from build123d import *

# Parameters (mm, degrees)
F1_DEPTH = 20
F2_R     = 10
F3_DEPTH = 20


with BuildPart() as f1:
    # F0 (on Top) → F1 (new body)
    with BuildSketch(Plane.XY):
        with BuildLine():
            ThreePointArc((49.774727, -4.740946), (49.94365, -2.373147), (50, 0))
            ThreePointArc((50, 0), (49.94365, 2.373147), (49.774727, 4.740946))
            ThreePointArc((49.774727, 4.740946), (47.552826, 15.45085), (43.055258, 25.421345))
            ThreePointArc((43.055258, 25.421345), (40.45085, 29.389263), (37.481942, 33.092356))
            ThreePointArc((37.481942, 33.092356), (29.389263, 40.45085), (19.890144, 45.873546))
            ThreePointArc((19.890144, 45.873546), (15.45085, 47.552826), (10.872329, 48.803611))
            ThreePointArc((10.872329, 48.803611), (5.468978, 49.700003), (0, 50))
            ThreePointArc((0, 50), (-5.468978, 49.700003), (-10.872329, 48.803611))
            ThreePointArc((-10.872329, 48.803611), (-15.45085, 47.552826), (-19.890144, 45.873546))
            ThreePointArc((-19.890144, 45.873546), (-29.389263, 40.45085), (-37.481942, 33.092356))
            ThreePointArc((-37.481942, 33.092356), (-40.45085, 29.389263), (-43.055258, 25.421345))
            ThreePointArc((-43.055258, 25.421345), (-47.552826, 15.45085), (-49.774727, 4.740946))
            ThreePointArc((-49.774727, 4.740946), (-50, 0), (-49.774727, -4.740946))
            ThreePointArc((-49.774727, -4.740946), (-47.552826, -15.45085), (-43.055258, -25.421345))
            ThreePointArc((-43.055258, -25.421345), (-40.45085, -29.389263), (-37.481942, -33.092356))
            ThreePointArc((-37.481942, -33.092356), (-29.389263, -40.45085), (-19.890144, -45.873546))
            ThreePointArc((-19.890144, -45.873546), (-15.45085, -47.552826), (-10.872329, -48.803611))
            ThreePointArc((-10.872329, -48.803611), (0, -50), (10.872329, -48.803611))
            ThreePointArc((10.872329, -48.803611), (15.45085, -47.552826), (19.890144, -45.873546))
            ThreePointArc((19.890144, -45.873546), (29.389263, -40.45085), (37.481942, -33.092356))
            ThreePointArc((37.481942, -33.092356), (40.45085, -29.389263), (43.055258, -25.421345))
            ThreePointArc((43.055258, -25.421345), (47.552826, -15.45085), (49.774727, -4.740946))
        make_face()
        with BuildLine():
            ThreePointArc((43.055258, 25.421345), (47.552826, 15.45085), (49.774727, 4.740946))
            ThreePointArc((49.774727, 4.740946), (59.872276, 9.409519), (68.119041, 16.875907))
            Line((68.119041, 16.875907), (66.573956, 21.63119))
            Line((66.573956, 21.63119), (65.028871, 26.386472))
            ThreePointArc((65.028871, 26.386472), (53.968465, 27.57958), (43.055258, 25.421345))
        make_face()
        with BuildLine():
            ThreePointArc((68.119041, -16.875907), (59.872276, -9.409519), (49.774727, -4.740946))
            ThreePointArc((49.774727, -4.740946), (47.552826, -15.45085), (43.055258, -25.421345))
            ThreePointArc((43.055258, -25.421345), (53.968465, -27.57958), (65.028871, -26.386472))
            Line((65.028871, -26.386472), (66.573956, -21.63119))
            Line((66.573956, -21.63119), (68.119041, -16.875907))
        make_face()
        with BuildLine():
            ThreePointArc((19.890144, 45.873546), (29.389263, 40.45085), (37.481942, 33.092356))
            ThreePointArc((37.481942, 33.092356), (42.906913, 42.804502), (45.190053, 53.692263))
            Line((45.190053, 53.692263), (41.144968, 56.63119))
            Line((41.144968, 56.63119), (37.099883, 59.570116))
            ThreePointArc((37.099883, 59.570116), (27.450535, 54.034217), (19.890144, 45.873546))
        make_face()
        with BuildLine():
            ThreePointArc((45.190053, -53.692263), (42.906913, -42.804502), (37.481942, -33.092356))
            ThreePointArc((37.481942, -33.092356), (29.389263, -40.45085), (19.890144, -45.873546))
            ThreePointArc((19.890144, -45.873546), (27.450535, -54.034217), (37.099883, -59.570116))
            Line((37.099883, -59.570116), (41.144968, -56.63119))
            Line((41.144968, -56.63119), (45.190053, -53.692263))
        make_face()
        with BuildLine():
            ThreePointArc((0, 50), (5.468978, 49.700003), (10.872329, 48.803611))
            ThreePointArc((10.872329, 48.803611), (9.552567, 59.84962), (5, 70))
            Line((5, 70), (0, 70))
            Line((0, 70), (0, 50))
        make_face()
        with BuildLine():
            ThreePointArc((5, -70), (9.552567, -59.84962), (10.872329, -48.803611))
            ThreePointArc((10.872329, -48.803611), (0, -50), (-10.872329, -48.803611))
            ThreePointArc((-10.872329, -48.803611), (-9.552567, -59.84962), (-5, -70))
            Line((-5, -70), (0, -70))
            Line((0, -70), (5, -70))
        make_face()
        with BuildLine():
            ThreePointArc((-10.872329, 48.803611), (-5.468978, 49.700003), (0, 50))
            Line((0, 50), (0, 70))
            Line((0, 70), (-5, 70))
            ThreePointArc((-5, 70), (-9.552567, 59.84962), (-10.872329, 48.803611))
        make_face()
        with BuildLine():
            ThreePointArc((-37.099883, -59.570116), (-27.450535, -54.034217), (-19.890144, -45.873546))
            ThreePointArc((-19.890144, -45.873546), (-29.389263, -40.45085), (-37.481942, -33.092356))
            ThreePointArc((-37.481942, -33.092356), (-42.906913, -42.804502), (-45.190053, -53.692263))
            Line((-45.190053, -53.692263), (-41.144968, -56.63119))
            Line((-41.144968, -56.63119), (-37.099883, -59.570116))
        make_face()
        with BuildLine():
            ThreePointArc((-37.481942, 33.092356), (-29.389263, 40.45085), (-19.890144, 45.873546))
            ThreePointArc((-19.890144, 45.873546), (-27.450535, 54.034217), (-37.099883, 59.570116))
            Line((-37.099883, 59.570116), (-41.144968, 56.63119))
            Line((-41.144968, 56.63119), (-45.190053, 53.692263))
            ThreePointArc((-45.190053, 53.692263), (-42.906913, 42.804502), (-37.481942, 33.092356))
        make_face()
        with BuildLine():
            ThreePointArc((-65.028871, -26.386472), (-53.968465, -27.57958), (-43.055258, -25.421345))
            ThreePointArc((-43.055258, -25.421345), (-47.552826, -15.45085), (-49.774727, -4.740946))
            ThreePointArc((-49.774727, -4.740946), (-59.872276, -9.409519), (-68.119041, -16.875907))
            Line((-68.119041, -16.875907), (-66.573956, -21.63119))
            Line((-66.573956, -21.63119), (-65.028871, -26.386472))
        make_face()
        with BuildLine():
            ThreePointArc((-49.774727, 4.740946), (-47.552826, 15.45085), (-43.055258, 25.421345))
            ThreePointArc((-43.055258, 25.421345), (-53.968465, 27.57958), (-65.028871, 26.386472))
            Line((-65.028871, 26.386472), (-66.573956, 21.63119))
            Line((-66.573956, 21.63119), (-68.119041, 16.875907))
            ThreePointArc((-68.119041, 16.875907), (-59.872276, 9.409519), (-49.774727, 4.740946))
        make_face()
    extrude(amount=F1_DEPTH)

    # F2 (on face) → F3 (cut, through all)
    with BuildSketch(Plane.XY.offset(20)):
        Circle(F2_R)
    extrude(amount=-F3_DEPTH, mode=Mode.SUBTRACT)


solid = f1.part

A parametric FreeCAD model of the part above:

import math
import FreeCAD as App
import Part
import Sketcher

V = App.Vector
Q = App.Units.Quantity

doc = App.newDocument("Part")
body = doc.addObject("PartDesign::Body", "Body")

sketch1 = body.newObject("Sketcher::SketchObject", "Sketch")
sketch1.AttachmentSupport = (doc.getObject("XY_Plane"), [""])
sketch1.MapMode = "FlatFace"
sketch1.addGeometry([
    Part.ArcOfCircle(Part.Circle(V(-0.000057, 0.000001, 0), V(0, 0, 1), 50.000057), math.radians(-5.440892), math.radians(-0.000001)),
    Part.ArcOfCircle(Part.Circle(V(-0.000057, -0.000001, 0), V(0, 0, 1), 50.000057), math.radians(0.000001), math.radians(5.440892)),
    Part.ArcOfCircle(Part.Circle(V(39.518383, 40.178321, 0), V(0, 0, 1), 36.891736), math.radians(-73.858411), math.radians(-39.17146)),
    Part.LineSegment(V(68.119041, 16.875907, 0), V(66.573956, 21.63119, 0)),
    Part.LineSegment(V(66.573956, 21.63119, 0), V(65.028871, 26.386472, 0)),
    Part.ArcOfCircle(Part.Circle(V(55.587267, -9.276627, 0), V(0, 0, 1), 36.89174), math.radians(75.17146), math.radians(109.858408)),
    Part.ArcOfCircle(Part.Circle(V(0.00006, 0.000042, 0), V(0, 0, 1), 49.999927), math.radians(30.559096), math.radians(41.440906)),
    Part.ArcOfCircle(Part.Circle(V(8.354822, 55.733266, 0), V(0, 0, 1), 36.891732), math.radians(-37.858414), math.radians(-3.171459)),
    Part.LineSegment(V(45.190053, 53.692263, 0), V(41.144968, 56.63119, 0)),
    Part.LineSegment(V(41.144968, 56.63119, 0), V(37.099883, 59.570116, 0)),
    Part.ArcOfCircle(Part.Circle(V(50.423707, 25.16843, 0), V(0, 0, 1), 36.891738), math.radians(111.171459), math.radians(145.858409)),
    Part.ArcOfCircle(Part.Circle(V(0.000009, 0.000017, 0), V(0, 0, 1), 49.999981), math.radians(66.559105), math.radians(77.440904)),
    Part.ArcOfCircle(Part.Circle(V(-25.999989, 50.000003, 0), V(0, 0, 1), 36.891723), math.radians(-1.858418), math.radians(32.828547)),
    Part.LineSegment(V(5, 70, 0), V(-5, 70, 0)),
    Part.ArcOfCircle(Part.Circle(V(25.999989, 50.000003, 0), V(0, 0, 1), 36.891723), math.radians(147.171453), math.radians(181.858418)),
    Part.ArcOfCircle(Part.Circle(V(-0.000009, 0.000017, 0), V(0, 0, 1), 49.999981), math.radians(102.559096), math.radians(113.440895)),
    Part.ArcOfCircle(Part.Circle(V(-50.423707, 25.16843, 0), V(0, 0, 1), 36.891738), math.radians(34.141591), math.radians(68.828541)),
    Part.LineSegment(V(-37.099883, 59.570116, 0), V(-41.144968, 56.63119, 0)),
    Part.LineSegment(V(-41.144968, 56.63119, 0), V(-45.190053, 53.692263, 0)),
    Part.ArcOfCircle(Part.Circle(V(-8.354822, 55.733266, 0), V(0, 0, 1), 36.891732), math.radians(-176.828541), math.radians(-142.141586)),
    Part.ArcOfCircle(Part.Circle(V(-0.00006, 0.000042, 0), V(0, 0, 1), 49.999927), math.radians(138.559094), math.radians(149.440904)),
    Part.ArcOfCircle(Part.Circle(V(-55.587267, -9.276627, 0), V(0, 0, 1), 36.89174), math.radians(70.141592), math.radians(104.82854)),
    Part.LineSegment(V(-65.028871, 26.386472, 0), V(-66.573956, 21.63119, 0)),
    Part.LineSegment(V(-66.573956, 21.63119, 0), V(-68.119041, 16.875907, 0)),
    Part.ArcOfCircle(Part.Circle(V(-39.518383, 40.178321, 0), V(0, 0, 1), 36.891736), math.radians(-140.82854), math.radians(-106.141589)),
    Part.ArcOfCircle(Part.Circle(V(0.000038, 0, 0), V(0, 0, 1), 50.000038), math.radians(174.559106), math.radians(185.440894)),
    Part.ArcOfCircle(Part.Circle(V(-39.518383, -40.178321, 0), V(0, 0, 1), 36.891736), math.radians(106.141589), math.radians(140.82854)),
    Part.LineSegment(V(-68.119041, -16.875907, 0), V(-66.573956, -21.63119, 0)),
    Part.LineSegment(V(-66.573956, -21.63119, 0), V(-65.028871, -26.386472, 0)),
    Part.ArcOfCircle(Part.Circle(V(-55.587267, 9.276627, 0), V(0, 0, 1), 36.89174), math.radians(-104.82854), math.radians(-70.141592)),
    Part.ArcOfCircle(Part.Circle(V(-0.00006, -0.000042, 0), V(0, 0, 1), 49.999927), math.radians(-149.440904), math.radians(-138.559094)),
    Part.ArcOfCircle(Part.Circle(V(-8.354822, -55.733266, 0), V(0, 0, 1), 36.891732), math.radians(142.141586), math.radians(176.828541)),
    Part.LineSegment(V(-45.190053, -53.692263, 0), V(-41.144968, -56.63119, 0)),
    Part.LineSegment(V(-41.144968, -56.63119, 0), V(-37.099883, -59.570116, 0)),
    Part.ArcOfCircle(Part.Circle(V(-50.423707, -25.16843, 0), V(0, 0, 1), 36.891738), math.radians(-68.828541), math.radians(-34.141591)),
    Part.ArcOfCircle(Part.Circle(V(-0.000009, -0.000017, 0), V(0, 0, 1), 49.999981), math.radians(-113.440895), math.radians(-102.559096)),
    Part.ArcOfCircle(Part.Circle(V(25.999989, -50.000003, 0), V(0, 0, 1), 36.891723), math.radians(178.141582), math.radians(212.828547)),
    Part.LineSegment(V(-5, -70, 0), V(5, -70, 0)),
    Part.ArcOfCircle(Part.Circle(V(-25.999989, -50.000003, 0), V(0, 0, 1), 36.891723), math.radians(-32.828547), math.radians(1.858418)),
    Part.ArcOfCircle(Part.Circle(V(0.000009, -0.000017, 0), V(0, 0, 1), 49.999981), math.radians(-77.440904), math.radians(-66.559105)),
    Part.ArcOfCircle(Part.Circle(V(50.423707, -25.16843, 0), V(0, 0, 1), 36.891738), math.radians(-145.858409), math.radians(-111.171459)),
    Part.LineSegment(V(37.099883, -59.570116, 0), V(41.144968, -56.63119, 0)),
    Part.LineSegment(V(41.144968, -56.63119, 0), V(45.190053, -53.692263, 0)),
    Part.ArcOfCircle(Part.Circle(V(8.354822, -55.733266, 0), V(0, 0, 1), 36.891732), math.radians(3.171459), math.radians(37.858414)),
    Part.ArcOfCircle(Part.Circle(V(0.00006, -0.000042, 0), V(0, 0, 1), 49.999927), math.radians(-41.440906), math.radians(-30.559096)),
    Part.ArcOfCircle(Part.Circle(V(55.587267, 9.276627, 0), V(0, 0, 1), 36.89174), math.radians(-109.858408), math.radians(-75.17146)),
    Part.LineSegment(V(65.028871, -26.386472, 0), V(66.573956, -21.63119, 0)),
    Part.LineSegment(V(66.573956, -21.63119, 0), V(68.119041, -16.875907, 0)),
    Part.ArcOfCircle(Part.Circle(V(39.518383, -40.178321, 0), V(0, 0, 1), 36.891736), math.radians(39.17146), math.radians(73.858411)),
], False)
sketch1.addConstraint([
    Sketcher.Constraint("Tangent", 0, 2, 1, 1),
    Sketcher.Constraint("Coincident", 1, 2, 2, 1),
    Sketcher.Constraint("Coincident", 2, 2, 3, 1),
    Sketcher.Constraint("Coincident", 3, 2, 4, 1),
    Sketcher.Constraint("Coincident", 4, 2, 5, 1),
    Sketcher.Constraint("Coincident", 5, 2, 6, 1),
    Sketcher.Constraint("Coincident", 6, 2, 7, 1),
    Sketcher.Constraint("Coincident", 7, 2, 8, 1),
    Sketcher.Constraint("Coincident", 8, 2, 9, 1),
    Sketcher.Constraint("Coincident", 9, 2, 10, 1),
    Sketcher.Constraint("Coincident", 10, 2, 11, 1),
    Sketcher.Constraint("Coincident", 11, 2, 12, 1),
    Sketcher.Constraint("Coincident", 12, 2, 13, 1),
    Sketcher.Constraint("Coincident", 13, 2, 14, 1),
    Sketcher.Constraint("Coincident", 14, 2, 15, 1),
    Sketcher.Constraint("Coincident", 15, 2, 16, 1),
    Sketcher.Constraint("Coincident", 16, 2, 17, 1),
    Sketcher.Constraint("Coincident", 17, 2, 18, 1),
    Sketcher.Constraint("Coincident", 18, 2, 19, 1),
    Sketcher.Constraint("Coincident", 19, 2, 20, 1),
    Sketcher.Constraint("Coincident", 20, 2, 21, 1),
    Sketcher.Constraint("Coincident", 21, 2, 22, 1),
    Sketcher.Constraint("Coincident", 22, 2, 23, 1),
    Sketcher.Constraint("Coincident", 23, 2, 24, 1),
    Sketcher.Constraint("Coincident", 24, 2, 25, 1),
    Sketcher.Constraint("Coincident", 25, 2, 26, 1),
    Sketcher.Constraint("Coincident", 26, 2, 27, 1),
    Sketcher.Constraint("Coincident", 27, 2, 28, 1),
    Sketcher.Constraint("Coincident", 28, 2, 29, 1),
    Sketcher.Constraint("Coincident", 29, 2, 30, 1),
    Sketcher.Constraint("Coincident", 30, 2, 31, 1),
    Sketcher.Constraint("Coincident", 31, 2, 32, 1),
    Sketcher.Constraint("Coincident", 32, 2, 33, 1),
    Sketcher.Constraint("Coincident", 33, 2, 34, 1),
    Sketcher.Constraint("Coincident", 34, 2, 35, 1),
    Sketcher.Constraint("Coincident", 35, 2, 36, 1),
    Sketcher.Constraint("Coincident", 36, 2, 37, 1),
    Sketcher.Constraint("Coincident", 37, 2, 38, 1),
    Sketcher.Constraint("Coincident", 38, 2, 39, 1),
    Sketcher.Constraint("Coincident", 39, 2, 40, 1),
    Sketcher.Constraint("Coincident", 40, 2, 41, 1),
    Sketcher.Constraint("Coincident", 41, 2, 42, 1),
    Sketcher.Constraint("Coincident", 42, 2, 43, 1),
    Sketcher.Constraint("Coincident", 43, 2, 44, 1),
    Sketcher.Constraint("Coincident", 44, 2, 45, 1),
    Sketcher.Constraint("Coincident", 45, 2, 46, 1),
    Sketcher.Constraint("Coincident", 46, 2, 47, 1),
    Sketcher.Constraint("Coincident", 47, 2, 48, 1),
    Sketcher.Constraint("Coincident", 48, 2, 0, 1),
    Sketcher.Constraint("Horizontal", 13),
    Sketcher.Constraint("Horizontal", 37),
    Sketcher.Constraint("Equal", 0, 1),
    Sketcher.Constraint("Equal", 12, 14),
    Sketcher.Constraint("Equal", 11, 15),
    Sketcher.Constraint("Equal", 10, 16),
    Sketcher.Constraint("Equal", 7, 19),
    Sketcher.Constraint("Equal", 6, 20),
    Sketcher.Constraint("Equal", 5, 21),
    Sketcher.Constraint("Equal", 2, 24),
    Sketcher.Constraint("Equal", 24, 26),
    Sketcher.Constraint("Equal", 21, 29),
    Sketcher.Constraint("Equal", 20, 30),
    Sketcher.Constraint("Equal", 19, 31),
    Sketcher.Constraint("Equal", 16, 34),
    Sketcher.Constraint("Equal", 15, 35),
    Sketcher.Constraint("Equal", 14, 36),
    Sketcher.Constraint("Equal", 36, 38),
    Sketcher.Constraint("Equal", 35, 39),
    Sketcher.Constraint("Equal", 34, 40),
    Sketcher.Constraint("Equal", 31, 43),
    Sketcher.Constraint("Equal", 30, 44),
    Sketcher.Constraint("Equal", 29, 45),
    Sketcher.Constraint("Equal", 26, 48),
    Sketcher.Constraint("Symmetric", 2, 3, 26, 3, -1, 1),
    Sketcher.Constraint("Symmetric", 5, 3, 29, 3, -1, 1),
    Sketcher.Constraint("Symmetric", 6, 3, 30, 3, -1, 1),
    Sketcher.Constraint("Symmetric", 7, 3, 31, 3, -1, 1),
    Sketcher.Constraint("Symmetric", 10, 3, 34, 3, -1, 1),
    Sketcher.Constraint("Symmetric", 11, 3, 35, 3, -1, 1),
    Sketcher.Constraint("Symmetric", 12, 3, 36, 3, -1, 1),
    Sketcher.Constraint("Symmetric", 14, 3, 38, 3, -1, 1),
    Sketcher.Constraint("Symmetric", 15, 3, 39, 3, -1, 1),
    Sketcher.Constraint("Symmetric", 16, 3, 40, 3, -1, 1),
    Sketcher.Constraint("Symmetric", 19, 3, 43, 3, -1, 1),
    Sketcher.Constraint("Symmetric", 20, 3, 44, 3, -1, 1),
    Sketcher.Constraint("Symmetric", 21, 3, 45, 3, -1, 1),
    Sketcher.Constraint("Symmetric", 24, 3, 48, 3, -1, 1),
    Sketcher.Constraint("Symmetric", 3, 2, 27, 2, -1, 1),
    Sketcher.Constraint("Symmetric", 8, 2, 32, 2, -1, 1),
    Sketcher.Constraint("Symmetric", 17, 2, 41, 2, -1, 1),
    Sketcher.Constraint("Symmetric", 22, 2, 46, 2, -1, 1),
    Sketcher.Constraint("Symmetric", 12, 3, 14, 3, -2),
    Sketcher.Constraint("Symmetric", 11, 3, 15, 3, -2),
    Sketcher.Constraint("Symmetric", 10, 3, 16, 3, -2),
    Sketcher.Constraint("Symmetric", 7, 3, 19, 3, -2),
    Sketcher.Constraint("Symmetric", 6, 3, 20, 3, -2),
    Sketcher.Constraint("Symmetric", 5, 3, 21, 3, -2),
    Sketcher.Constraint("Symmetric", 2, 3, 24, 3, -2),
    Sketcher.Constraint("Symmetric", 8, 2, 17, 2, -2),
    Sketcher.Constraint("Symmetric", 3, 2, 22, 2, -2),
    Sketcher.Constraint("PointOnObject", 0, 3, -1),
    Sketcher.Constraint("PointOnObject", 25, 3, -1),
    Sketcher.Constraint("PointOnObject", 0, 2, -1),
    Sketcher.Constraint("Parallel", 3, 4),
    Sketcher.Constraint("Parallel", 8, 9),
    Sketcher.Constraint("Parallel", 17, 18),
    Sketcher.Constraint("Parallel", 22, 23),
    Sketcher.Constraint("Parallel", 4, 27),
    Sketcher.Constraint("Parallel", 27, 28),
    Sketcher.Constraint("Parallel", 9, 32),
    Sketcher.Constraint("Parallel", 32, 33),
    Sketcher.Constraint("Parallel", 18, 41),
    Sketcher.Constraint("Parallel", 41, 42),
    Sketcher.Constraint("Parallel", 23, 46),
    Sketcher.Constraint("Parallel", 46, 47),
    Sketcher.Constraint("Horizontal", 9, 2, 16, 2),
    Sketcher.Constraint("Horizontal", 4, 2, 21, 2),
    Sketcher.Constraint("Horizontal", 1, 2, 24, 2),
    Sketcher.Constraint("Vertical", 13, 2, 36, 2),
    Sketcher.Constraint("Equal", 3, 4),
    Sketcher.Constraint("Equal", 4, 8),
    Sketcher.Constraint("Equal", 8, 9),
    Sketcher.Constraint("DistanceX", 13, 2, 13, 1, 10.0),
    Sketcher.Constraint("Angle", 3, Q("107.999999 deg")),
    Sketcher.Constraint("Angle", 8, Q("143.999993 deg")),
    Sketcher.Constraint("Distance", 3, 5.0),
    Sketcher.Constraint("DistanceX", -1, 1, 0, 2, 50.0),
    Sketcher.Constraint("DistanceY", -1, 1, 12, 2, 70.0),
    Sketcher.Constraint("Radius", 5, 36.89174),
    Sketcher.Constraint("Radius", 11, 49.999981),
    Sketcher.Constraint("Radius", 0, 50.000057),
    Sketcher.Constraint("Radius", 2, 36.891736),
    Sketcher.Constraint("Radius", 6, 49.999927),
    Sketcher.Constraint("Radius", 7, 36.891732),
    Sketcher.Constraint("Radius", 10, 36.891738),
    Sketcher.Constraint("Radius", 12, 36.891723),
    Sketcher.Constraint("Radius", 25, 50.000038),
    Sketcher.Constraint("DistanceY", -1, 1, 2, 3, 40.178321),
    Sketcher.Constraint("DistanceY", -1, 1, 10, 3, 25.16843),
    Sketcher.Constraint("DistanceX", 12, 3, -1, 1, 25.999989),
    Sketcher.Constraint("DistanceX", -1, 1, 2, 2, 68.119041),
    Sketcher.Constraint("DistanceY", -1, 1, 3, 2, 21.63119),
    Sketcher.Constraint("DistanceX", -1, 1, 5, 2, 43.055258),
    Sketcher.Constraint("DistanceX", -1, 1, 6, 2, 37.481942),
    Sketcher.Constraint("DistanceY", -1, 1, 8, 2, 56.63119),
    Sketcher.Constraint("DistanceY", -1, 1, 11, 2, 48.803611),
    Sketcher.Constraint("DistanceX", -1, 1, 5, 3, 55.587267),
    Sketcher.Constraint("DistanceX", -1, 1, 7, 3, 8.354822),
    Sketcher.Constraint("DistanceY", -1, 1, 7, 3, 55.733266),
    Sketcher.Constraint("DistanceX", -1, 1, 10, 2, 19.890144),
])
pad1 = body.newObject("PartDesign::Pad", "Pad")
pad1.Profile = sketch1
pad1.Length = 20

sketch2 = body.newObject("Sketcher::SketchObject", "Sketch001")
sketch2.AttachmentSupport = (doc.getObject("XY_Plane"), [""])
sketch2.MapMode = "FlatFace"
sketch2.AttachmentOffset = App.Placement(V(0, 0, 20), App.Rotation())
sketch2.addGeometry(Part.Circle(V(0, 0, 0), V(0, 0, 1), 10), False)
sketch2.addConstraint([
    Sketcher.Constraint("Coincident", 0, 3, -1, 1),
    Sketcher.Constraint("Diameter", 0, 20.0),
])
pocket1 = body.newObject("PartDesign::Pocket", "Pocket")
pocket1.Profile = sketch2
pocket1.Type = "ThroughAll"

doc.recompute()
